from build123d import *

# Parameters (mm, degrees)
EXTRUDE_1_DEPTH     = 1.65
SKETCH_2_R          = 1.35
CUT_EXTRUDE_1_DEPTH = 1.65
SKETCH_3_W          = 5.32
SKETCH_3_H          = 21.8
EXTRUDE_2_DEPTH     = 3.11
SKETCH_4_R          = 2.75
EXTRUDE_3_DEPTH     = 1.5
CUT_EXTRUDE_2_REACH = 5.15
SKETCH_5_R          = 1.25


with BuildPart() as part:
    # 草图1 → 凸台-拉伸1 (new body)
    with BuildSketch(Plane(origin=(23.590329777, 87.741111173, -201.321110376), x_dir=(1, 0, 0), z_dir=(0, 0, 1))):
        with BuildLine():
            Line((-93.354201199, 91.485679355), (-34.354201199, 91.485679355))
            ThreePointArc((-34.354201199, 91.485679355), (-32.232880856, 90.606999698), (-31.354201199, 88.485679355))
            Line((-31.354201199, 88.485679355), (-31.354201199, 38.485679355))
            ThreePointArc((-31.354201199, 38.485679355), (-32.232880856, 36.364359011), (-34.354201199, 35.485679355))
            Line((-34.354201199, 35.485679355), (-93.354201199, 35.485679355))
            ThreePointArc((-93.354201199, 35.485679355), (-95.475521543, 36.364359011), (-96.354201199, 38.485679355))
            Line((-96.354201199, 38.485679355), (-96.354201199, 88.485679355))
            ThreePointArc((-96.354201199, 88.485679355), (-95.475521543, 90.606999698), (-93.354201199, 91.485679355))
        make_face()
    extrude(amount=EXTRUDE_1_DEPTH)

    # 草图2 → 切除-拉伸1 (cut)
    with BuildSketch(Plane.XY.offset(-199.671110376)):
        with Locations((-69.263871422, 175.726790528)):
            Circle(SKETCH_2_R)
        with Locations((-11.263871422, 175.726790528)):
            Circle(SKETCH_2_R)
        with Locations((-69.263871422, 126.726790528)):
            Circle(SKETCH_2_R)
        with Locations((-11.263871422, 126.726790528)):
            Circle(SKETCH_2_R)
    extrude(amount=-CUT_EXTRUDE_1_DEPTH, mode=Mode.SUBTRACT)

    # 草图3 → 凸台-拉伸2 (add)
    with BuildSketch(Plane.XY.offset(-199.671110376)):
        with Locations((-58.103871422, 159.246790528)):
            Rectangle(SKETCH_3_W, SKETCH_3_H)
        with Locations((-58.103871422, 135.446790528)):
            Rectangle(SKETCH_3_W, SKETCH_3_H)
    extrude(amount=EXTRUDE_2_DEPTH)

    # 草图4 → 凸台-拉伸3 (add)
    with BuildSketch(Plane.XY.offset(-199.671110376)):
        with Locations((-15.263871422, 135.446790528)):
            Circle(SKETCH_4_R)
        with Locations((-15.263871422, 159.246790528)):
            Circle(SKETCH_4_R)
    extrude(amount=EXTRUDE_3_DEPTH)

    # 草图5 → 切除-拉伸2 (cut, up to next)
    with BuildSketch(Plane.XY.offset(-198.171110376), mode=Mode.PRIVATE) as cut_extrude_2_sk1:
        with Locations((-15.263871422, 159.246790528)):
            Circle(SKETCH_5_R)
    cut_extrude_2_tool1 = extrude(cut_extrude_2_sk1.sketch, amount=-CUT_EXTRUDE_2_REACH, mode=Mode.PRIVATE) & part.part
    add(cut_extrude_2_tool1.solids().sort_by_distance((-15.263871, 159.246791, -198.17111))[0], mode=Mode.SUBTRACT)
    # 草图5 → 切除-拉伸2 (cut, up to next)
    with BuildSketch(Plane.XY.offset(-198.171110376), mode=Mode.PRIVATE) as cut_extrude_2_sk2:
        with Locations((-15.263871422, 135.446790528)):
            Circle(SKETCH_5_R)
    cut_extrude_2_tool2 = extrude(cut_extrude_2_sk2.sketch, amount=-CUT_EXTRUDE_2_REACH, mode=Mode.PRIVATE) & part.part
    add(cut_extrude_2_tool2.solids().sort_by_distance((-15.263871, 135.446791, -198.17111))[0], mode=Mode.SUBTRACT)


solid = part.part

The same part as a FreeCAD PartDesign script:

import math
import FreeCAD as App
import Part
import Sketcher
Q = App.Units.Quantity


def add_polygon(sketch, points):
    """Adds a closed chain of lines whose ends are joined by coincident constraints."""
    first, n = sketch.GeometryCount, len(points)
    for a, b in zip(points, points[1:] + points[:1]):
        sketch.addGeometry(Part.LineSegment(App.Vector(*a, 0), App.Vector(*b, 0)), False)
    for i in range(n):
        sketch.addConstraint(Sketcher.Constraint("Coincident", first + i, 2, first + (i + 1) % n, 1))

doc = App.newDocument("Part")
body = doc.addObject("PartDesign::Body", "Body")

# Sketch on XY plane
sketch1 = body.newObject("Sketcher::SketchObject", "Sketch")
sketch1.AttachmentSupport = (doc.getObject("XY_Plane"), [""])
sketch1.MapMode = "FlatFace"
sketch1.AttachmentOffset = App.Placement(App.Vector(0, 0, -201.32111), App.Rotation())
sketch1.addGeometry([
    Part.LineSegment(App.Vector(-10.763871, 179.226791, 0), App.Vector(-69.763871, 179.226791, 0)),  # 0
    Part.ArcOfCircle(Part.Circle(App.Vector(-69.763871, 176.226791, 0), App.Vector(0, 0, 1), 3), math.radians(90), math.radians(180)),  # 1
    Part.LineSegment(App.Vector(-72.763871, 176.226791, 0), App.Vector(-72.763871, 126.226791, 0)),  # 2
    Part.ArcOfCircle(Part.Circle(App.Vector(-69.763871, 126.226791, 0), App.Vector(0, 0, 1), 3), math.radians(180), math.radians(270)),  # 3
    Part.LineSegment(App.Vector(-69.763871, 123.226791, 0), App.Vector(-10.763871, 123.226791, 0)),  # 4
    Part.ArcOfCircle(Part.Circle(App.Vector(-10.763871, 126.226791, 0), App.Vector(0, 0, 1), 3), math.radians(-90), math.radians(0)),  # 5
    Part.LineSegment(App.Vector(-7.763871, 126.226791, 0), App.Vector(-7.763871, 176.226791, 0)),  # 6
    Part.ArcOfCircle(Part.Circle(App.Vector(-10.763871, 176.226791, 0), App.Vector(0, 0, 1), 3), math.radians(0), math.radians(90)),  # 7
], False)
sketch1.addConstraint([
    Sketcher.Constraint("Tangent", 0, 2, 1, 1),
    Sketcher.Constraint("Tangent", 1, 2, 2, 1),
    Sketcher.Constraint("Tangent", 2, 2, 3, 1),
    Sketcher.Constraint("Tangent", 3, 2, 4, 1),
    Sketcher.Constraint("Tangent", 4, 2, 5, 1),
    Sketcher.Constraint("Tangent", 5, 2, 6, 1),
    Sketcher.Constraint("Tangent", 6, 2, 7, 1),
    Sketcher.Constraint("Tangent", 7, 2, 0, 1),
    Sketcher.Constraint("Horizontal", 0),
    Sketcher.Constraint("Vertical", 2),
    Sketcher.Constraint("Horizontal", 4),
    Sketcher.Constraint("Vertical", 6),
    Sketcher.Constraint("Equal", 1, 3),
    Sketcher.Constraint("Equal", 3, 5),
    Sketcher.Constraint("Equal", 5, 7),
    Sketcher.Constraint("Radius", 1, Q("3 mm")),
    Sketcher.Constraint("DistanceX", 0, 2, 0, 1, Q("59 mm")),
    Sketcher.Constraint("DistanceY", 2, 2, 2, 1, Q("50 mm")),
    Sketcher.Constraint("DistanceX", 1, 3, -1, 1, Q("69.763871 mm")),
    Sketcher.Constraint("DistanceY", -1, 1, 1, 3, Q("176.226791 mm")),
])
pad1 = body.newObject("PartDesign::Pad", "Pad")
pad1.Profile = sketch1
pad1.Length = 1.65

# Sketch on XY plane
sketch2 = body.newObject("Sketcher::SketchObject", "Sketch001")
sketch2.AttachmentSupport = (doc.getObject("XY_Plane"), [""])
sketch2.MapMode = "FlatFace"
sketch2.AttachmentOffset = App.Placement(App.Vector(0, 0, -199.67111), App.Rotation())
sketch2.addGeometry([
    Part.Circle(App.Vector(-69.263871, 175.726791, 0), App.Vector(0, 0, 1), 1.35),
    Part.Circle(App.Vector(-11.263871, 175.726791, 0), App.Vector(0, 0, 1), 1.35),
    Part.Circle(App.Vector(-69.263871, 126.726791, 0), App.Vector(0, 0, 1), 1.35),
    Part.Circle(App.Vector(-11.263871, 126.726791, 0), App.Vector(0, 0, 1), 1.35),
], False)
sketch2.addConstraint([
    Sketcher.Constraint("Equal", 0, 1),
    Sketcher.Constraint("Equal", 1, 2),
    Sketcher.Constraint("Equal", 2, 3),
    Sketcher.Constraint("Horizontal", 0, 3, 1, 3),
    Sketcher.Constraint("Horizontal", 2, 3, 3, 3),
    Sketcher.Constraint("Vertical", 0, 3, 2, 3),
    Sketcher.Constraint("Vertical", 1, 3, 3, 3),
    Sketcher.Constraint("Diameter", 0, Q("2.7 mm")),
    Sketcher.Constraint("DistanceX", 0, 3, 1, 3, Q("58 mm")),
    Sketcher.Constraint("DistanceY", 2, 3, 0, 3, Q("49 mm")),
    Sketcher.Constraint("DistanceX", 0, 3, -1, 1, Q("69.263871 mm")),
    Sketcher.Constraint("DistanceY", -1, 1, 0, 3, Q("175.726791 mm")),
])
pocket1 = body.newObject("PartDesign::Pocket", "Pocket")
pocket1.Profile = sketch2
pocket1.Length = 1.65

# Sketch on XY plane
sketch3 = body.newObject("Sketcher::SketchObject", "Sketch002")
sketch3.AttachmentSupport = (doc.getObject("XY_Plane"), [""])
sketch3.MapMode = "FlatFace"
sketch3.AttachmentOffset = App.Placement(App.Vector(0, 0, -199.67111), App.Rotation())
add_polygon(sketch3, [(-60.763871, 170.146791), (-60.763871, 148.346791), (-55.443871, 148.346791), (-55.443871, 170.146791)])  # lines 0-3
add_polygon(sketch3, [(-60.763871, 146.346791), (-60.763871, 124.546791), (-55.443871, 124.546791), (-55.443871, 146.346791)])  # lines 4-7
sketch3.addConstraint([
    Sketcher.Constraint("Vertical", 0),
    Sketcher.Constraint("Horizontal", 1),
    Sketcher.Constraint("Vertical", 2),
    Sketcher.Constraint("Horizontal", 3),
    Sketcher.Constraint("Vertical", 4),
    Sketcher.Constraint("Horizontal", 5),
    Sketcher.Constraint("Vertical", 6),
    Sketcher.Constraint("Horizontal", 7),
    Sketcher.Constraint("Vertical", 3, 2, 4, 2),
    Sketcher.Constraint("Vertical", 2, 2, 5, 2),
    Sketcher.Constraint("Equal", 2, 4),
    Sketcher.Constraint("DistanceY", 0, 2, 0, 1, Q("21.8 mm")),
    Sketcher.Constraint("DistanceY", 6, 2, 1, 2, Q("2 mm")),
    Sketcher.Constraint("DistanceX", 1, 1, 1, 2, Q("5.32 mm")),
    Sketcher.Constraint("DistanceX", 0, 2, -1, 1, Q("60.763871 mm")),
    Sketcher.Constraint("DistanceY", -1, 1, 0, 2, Q("148.346791 mm")),
])
pad2 = body.newObject("PartDesign::Pad", "Pad001")
pad2.Profile = sketch3
pad2.Length = 3.11

# Sketch on XY plane
sketch4 = body.newObject("Sketcher::SketchObject", "Sketch003")
sketch4.AttachmentSupport = (doc.getObject("XY_Plane"), [""])
sketch4.MapMode = "FlatFace"
sketch4.AttachmentOffset = App.Placement(App.Vector(0, 0, -199.67111), App.Rotation())
sketch4.addGeometry([
    Part.Circle(App.Vector(-15.263871, 135.446791, 0), App.Vector(0, 0, 1), 2.75),
    Part.Circle(App.Vector(-15.263871, 159.246791, 0), App.Vector(0, 0, 1), 2.75),
], False)
sketch4.addConstraint([
    Sketcher.Constraint("Equal", 0, 1),
    Sketcher.Constraint("Vertical", 0, 3, 1, 3),
    Sketcher.Constraint("Diameter", 0, Q("5.5 mm")),
    Sketcher.Constraint("DistanceY", 0, 3, 1, 3, Q("23.8 mm")),
    Sketcher.Constraint("DistanceX", 0, 3, -1, 1, Q("15.263871 mm")),
    Sketcher.Constraint("DistanceY", -1, 1, 0, 3, Q("135.446791 mm")),
])
pad3 = body.newObject("PartDesign::Pad", "Pad002")
pad3.Profile = sketch4
pad3.Length = 1.5

# Sketch on XY plane
sketch5 = body.newObject("Sketcher::SketchObject", "Sketch004")
sketch5.AttachmentSupport = (doc.getObject("XY_Plane"), [""])
sketch5.MapMode = "FlatFace"
sketch5.AttachmentOffset = App.Placement(App.Vector(0, 0, -198.17111), App.Rotation())
sketch5.addGeometry(Part.Circle(App.Vector(-15.263871, 159.246791, 0), App.Vector(0, 0, 1), 1.25), False)
sketch5.addConstraint([
    Sketcher.Constraint("Diameter", 0, Q("2.5 mm")),
    Sketcher.Constraint("DistanceX", 0, 3, -1, 1, Q("15.263871 mm")),
    Sketcher.Constraint("DistanceY", -1, 1, 0, 3, Q("159.246791 mm")),
])
pocket2 = body.newObject("PartDesign::Pocket", "Pocket001")
pocket2.Profile = sketch5
pocket2.Type = "UpToFirst"

# Sketch on XY plane
sketch6 = body.newObject("Sketcher::SketchObject", "Sketch005")
sketch6.AttachmentSupport = (doc.getObject("XY_Plane"), [""])
sketch6.MapMode = "FlatFace"
sketch6.AttachmentOffset = App.Placement(App.Vector(0, 0, -198.17111), App.Rotation())
sketch6.addGeometry(Part.Circle(App.Vector(-15.263871, 135.446791, 0), App.Vector(0, 0, 1), 1.25), False)
sketch6.addConstraint([
    Sketcher.Constraint("Diameter", 0, Q("2.5 mm")),
    Sketcher.Constraint("DistanceX", 0, 3, -1, 1, Q("15.263871 mm")),
    Sketcher.Constraint("DistanceY", -1, 1, 0, 3, Q("135.446791 mm")),
])
pocket3 = body.newObject("PartDesign::Pocket", "Pocket002")
pocket3.Profile = sketch6
pocket3.Type = "UpToFirst"

doc.recompute()
